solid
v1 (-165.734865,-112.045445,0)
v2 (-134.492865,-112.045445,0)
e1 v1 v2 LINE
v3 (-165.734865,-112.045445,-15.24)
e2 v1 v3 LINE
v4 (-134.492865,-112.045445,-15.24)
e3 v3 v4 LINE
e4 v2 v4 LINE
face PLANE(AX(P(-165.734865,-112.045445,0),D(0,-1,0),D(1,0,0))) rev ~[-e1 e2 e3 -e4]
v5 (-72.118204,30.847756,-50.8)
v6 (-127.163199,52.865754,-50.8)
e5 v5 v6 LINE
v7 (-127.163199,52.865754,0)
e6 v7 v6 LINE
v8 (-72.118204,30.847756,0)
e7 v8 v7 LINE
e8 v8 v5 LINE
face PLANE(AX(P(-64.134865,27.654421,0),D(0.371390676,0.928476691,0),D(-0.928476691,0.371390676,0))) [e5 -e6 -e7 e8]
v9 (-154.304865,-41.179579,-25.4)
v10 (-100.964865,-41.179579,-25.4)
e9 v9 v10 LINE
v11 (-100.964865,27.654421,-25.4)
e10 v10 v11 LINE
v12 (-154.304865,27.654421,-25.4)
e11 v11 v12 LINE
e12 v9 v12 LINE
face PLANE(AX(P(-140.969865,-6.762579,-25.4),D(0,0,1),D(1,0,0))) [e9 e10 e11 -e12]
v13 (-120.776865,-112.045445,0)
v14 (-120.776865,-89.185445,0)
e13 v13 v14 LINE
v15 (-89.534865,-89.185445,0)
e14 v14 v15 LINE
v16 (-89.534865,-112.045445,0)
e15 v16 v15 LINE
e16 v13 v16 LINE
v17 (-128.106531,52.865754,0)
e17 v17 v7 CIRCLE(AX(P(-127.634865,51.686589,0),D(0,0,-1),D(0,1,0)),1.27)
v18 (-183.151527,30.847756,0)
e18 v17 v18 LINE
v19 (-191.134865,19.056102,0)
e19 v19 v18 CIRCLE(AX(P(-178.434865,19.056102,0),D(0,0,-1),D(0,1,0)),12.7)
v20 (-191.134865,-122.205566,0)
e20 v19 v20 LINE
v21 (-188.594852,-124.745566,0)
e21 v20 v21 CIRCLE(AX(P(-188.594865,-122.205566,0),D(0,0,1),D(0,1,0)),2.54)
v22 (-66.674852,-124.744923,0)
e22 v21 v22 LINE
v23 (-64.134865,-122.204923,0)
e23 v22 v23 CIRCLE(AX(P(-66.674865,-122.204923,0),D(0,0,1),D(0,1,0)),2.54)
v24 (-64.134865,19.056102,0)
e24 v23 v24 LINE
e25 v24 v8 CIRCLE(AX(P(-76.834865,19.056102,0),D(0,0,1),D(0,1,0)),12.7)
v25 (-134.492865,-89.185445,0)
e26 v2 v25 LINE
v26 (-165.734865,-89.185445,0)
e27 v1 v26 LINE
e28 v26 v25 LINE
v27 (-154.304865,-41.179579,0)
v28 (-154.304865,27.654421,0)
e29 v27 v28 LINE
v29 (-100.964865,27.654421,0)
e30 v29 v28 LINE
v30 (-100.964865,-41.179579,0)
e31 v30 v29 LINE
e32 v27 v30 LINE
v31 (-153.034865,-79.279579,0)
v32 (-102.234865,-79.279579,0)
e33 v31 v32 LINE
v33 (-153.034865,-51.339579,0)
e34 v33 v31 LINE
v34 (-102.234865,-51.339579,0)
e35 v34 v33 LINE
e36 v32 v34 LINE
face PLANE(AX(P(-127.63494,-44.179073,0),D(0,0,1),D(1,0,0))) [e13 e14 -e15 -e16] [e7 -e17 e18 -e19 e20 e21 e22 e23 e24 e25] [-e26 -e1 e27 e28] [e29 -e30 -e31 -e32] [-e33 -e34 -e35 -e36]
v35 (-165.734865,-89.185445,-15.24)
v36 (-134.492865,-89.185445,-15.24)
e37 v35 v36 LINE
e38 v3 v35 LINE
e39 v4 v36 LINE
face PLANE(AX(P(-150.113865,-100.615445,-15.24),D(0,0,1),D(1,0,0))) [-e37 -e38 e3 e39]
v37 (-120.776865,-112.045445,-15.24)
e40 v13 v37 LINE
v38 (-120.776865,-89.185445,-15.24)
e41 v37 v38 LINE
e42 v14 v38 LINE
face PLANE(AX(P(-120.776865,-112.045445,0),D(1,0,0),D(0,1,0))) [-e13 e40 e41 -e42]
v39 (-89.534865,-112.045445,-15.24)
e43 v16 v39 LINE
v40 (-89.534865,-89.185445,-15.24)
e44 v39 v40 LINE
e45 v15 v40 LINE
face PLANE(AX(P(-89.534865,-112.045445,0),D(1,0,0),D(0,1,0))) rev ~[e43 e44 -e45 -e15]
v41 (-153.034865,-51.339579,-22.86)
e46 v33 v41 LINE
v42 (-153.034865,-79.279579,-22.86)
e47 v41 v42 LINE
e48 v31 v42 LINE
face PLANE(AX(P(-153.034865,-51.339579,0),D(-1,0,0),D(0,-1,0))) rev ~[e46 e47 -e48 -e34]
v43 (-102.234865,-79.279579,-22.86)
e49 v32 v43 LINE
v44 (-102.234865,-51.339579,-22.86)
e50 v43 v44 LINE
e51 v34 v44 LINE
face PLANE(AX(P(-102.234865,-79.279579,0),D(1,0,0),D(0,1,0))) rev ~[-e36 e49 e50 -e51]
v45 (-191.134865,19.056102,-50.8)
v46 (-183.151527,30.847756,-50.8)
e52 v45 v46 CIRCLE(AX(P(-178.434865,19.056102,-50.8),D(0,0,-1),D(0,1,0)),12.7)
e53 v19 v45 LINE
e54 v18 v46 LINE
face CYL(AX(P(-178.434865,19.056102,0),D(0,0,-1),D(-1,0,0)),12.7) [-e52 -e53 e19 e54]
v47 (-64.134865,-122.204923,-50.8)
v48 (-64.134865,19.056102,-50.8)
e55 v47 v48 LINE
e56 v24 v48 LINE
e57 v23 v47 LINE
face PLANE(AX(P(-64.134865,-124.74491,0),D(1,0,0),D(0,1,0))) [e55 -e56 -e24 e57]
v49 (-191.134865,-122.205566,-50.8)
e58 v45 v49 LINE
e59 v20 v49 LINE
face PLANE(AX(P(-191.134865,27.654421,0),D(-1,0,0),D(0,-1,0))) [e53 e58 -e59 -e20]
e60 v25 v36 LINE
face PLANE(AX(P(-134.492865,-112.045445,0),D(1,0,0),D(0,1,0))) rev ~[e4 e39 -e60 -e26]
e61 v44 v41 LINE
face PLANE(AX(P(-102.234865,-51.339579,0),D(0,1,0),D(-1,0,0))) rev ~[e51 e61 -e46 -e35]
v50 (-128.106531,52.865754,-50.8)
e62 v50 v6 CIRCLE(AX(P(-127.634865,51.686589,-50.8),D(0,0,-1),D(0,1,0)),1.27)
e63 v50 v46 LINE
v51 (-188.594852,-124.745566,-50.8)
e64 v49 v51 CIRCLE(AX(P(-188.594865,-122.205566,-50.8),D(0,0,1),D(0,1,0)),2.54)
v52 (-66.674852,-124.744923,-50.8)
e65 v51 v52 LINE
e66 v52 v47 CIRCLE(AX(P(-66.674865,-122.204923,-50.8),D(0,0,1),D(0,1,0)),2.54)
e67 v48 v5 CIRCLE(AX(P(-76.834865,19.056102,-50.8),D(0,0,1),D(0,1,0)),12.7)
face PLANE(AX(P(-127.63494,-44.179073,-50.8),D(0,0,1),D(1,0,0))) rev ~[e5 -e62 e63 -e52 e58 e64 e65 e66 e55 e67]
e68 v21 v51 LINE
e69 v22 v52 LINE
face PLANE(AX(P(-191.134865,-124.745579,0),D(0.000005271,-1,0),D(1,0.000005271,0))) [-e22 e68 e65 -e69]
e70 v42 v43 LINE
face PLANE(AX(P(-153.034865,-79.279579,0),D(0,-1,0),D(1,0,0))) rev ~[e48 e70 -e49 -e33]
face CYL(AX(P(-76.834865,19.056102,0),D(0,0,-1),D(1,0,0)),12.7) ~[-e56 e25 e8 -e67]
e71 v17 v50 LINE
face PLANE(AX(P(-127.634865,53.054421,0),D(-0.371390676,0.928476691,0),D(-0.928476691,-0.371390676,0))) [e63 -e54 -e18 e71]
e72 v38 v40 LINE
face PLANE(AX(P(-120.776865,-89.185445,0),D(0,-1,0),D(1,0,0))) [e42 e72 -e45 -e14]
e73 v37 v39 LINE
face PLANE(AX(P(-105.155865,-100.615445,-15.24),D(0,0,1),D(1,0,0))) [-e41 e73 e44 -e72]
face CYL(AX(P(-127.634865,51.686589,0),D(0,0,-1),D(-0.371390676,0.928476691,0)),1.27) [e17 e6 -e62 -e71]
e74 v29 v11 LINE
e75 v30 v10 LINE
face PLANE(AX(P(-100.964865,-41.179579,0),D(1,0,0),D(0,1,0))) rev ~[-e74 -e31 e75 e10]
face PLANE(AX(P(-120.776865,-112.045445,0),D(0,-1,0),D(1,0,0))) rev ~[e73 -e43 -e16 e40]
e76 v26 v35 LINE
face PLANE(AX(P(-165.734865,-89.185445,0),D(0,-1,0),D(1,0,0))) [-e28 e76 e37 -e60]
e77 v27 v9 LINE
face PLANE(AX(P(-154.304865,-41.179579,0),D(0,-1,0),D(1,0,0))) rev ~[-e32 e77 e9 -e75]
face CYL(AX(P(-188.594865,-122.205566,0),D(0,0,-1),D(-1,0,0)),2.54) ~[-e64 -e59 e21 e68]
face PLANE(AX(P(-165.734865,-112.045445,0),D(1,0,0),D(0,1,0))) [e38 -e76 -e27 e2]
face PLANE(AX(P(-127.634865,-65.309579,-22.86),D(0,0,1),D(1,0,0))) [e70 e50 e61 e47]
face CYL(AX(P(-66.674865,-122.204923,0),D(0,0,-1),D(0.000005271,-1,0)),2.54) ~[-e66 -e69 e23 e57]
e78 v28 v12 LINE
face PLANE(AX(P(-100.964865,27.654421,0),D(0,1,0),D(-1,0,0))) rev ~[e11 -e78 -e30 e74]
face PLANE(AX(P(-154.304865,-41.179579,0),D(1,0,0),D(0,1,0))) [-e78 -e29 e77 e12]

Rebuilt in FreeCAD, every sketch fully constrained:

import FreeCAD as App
import Part
import Sketcher
from FreeCAD import Vector
Q = App.Units.Quantity


def edges_at(feature, points):
    """Names of the edges that pass closest to the given points."""
    edges = feature.Shape.Edges
    near = lambda p: min(range(len(edges)), key=lambda i: edges[i].distToShape(Part.Vertex(*p))[0])
    return sorted({f"Edge{near(p) + 1}" for p in points})

doc = App.newDocument("Part")
body = doc.addObject("PartDesign::Body", "Body")

# Sketch on XY plane
sketch1 = body.newObject("Sketcher::SketchObject", "Sketch")
sketch1.AttachmentSupport = (doc.getObject("XY_Plane"), [""])
sketch1.MapMode = "FlatFace"
sketch1.addGeometry(Part.LineSegment(Vector(-191.134865, 27.654421, 0), Vector(-191.134865, -124.745579, 0)), False)
sketch1.addGeometry(Part.LineSegment(Vector(-191.134865, -124.745579, 0), Vector(-64.134865, -124.74491, 0)), False)
sketch1.addGeometry(Part.LineSegment(Vector(-64.134865, -124.74491, 0), Vector(-64.134865, 27.654421, 0)), False)
sketch1.addGeometry(Part.LineSegment(Vector(-64.134865, 27.654421, 0), Vector(-127.634865, 53.054421, 0)), False)
sketch1.addGeometry(Part.LineSegment(Vector(-127.634865, 53.054421, 0), Vector(-191.134865, 27.654421, 0)), False)
sketch1.addConstraint(Sketcher.Constraint("Coincident", 0, 2, 1, 1))
sketch1.addConstraint(Sketcher.Constraint("Coincident", 1, 2, 2, 1))
sketch1.addConstraint(Sketcher.Constraint("Coincident", 2, 2, 3, 1))
sketch1.addConstraint(Sketcher.Constraint("Coincident", 3, 2, 4, 1))
sketch1.addConstraint(Sketcher.Constraint("Coincident", 4, 2, 0, 1))
sketch1.addConstraint(Sketcher.Constraint("Vertical", 0))
sketch1.addConstraint(Sketcher.Constraint("Vertical", 2))
sketch1.addConstraint(Sketcher.Constraint("Horizontal", 2, 2, 4, 2))
sketch1.addConstraint(Sketcher.Constraint("Equal", 3, 4))
sketch1.addConstraint(Sketcher.Constraint("DistanceY", 0, 2, 0, 1, Q("6 in")))
sketch1.addConstraint(Sketcher.Constraint("Distance", 1, Q("5 in")))
sketch1.addConstraint(Sketcher.Constraint("DistanceY", 2, 2, 3, 2, Q("1 in")))
sketch1.addConstraint(Sketcher.Constraint("DistanceY", 2, 1, 2, 2, Q("152.399331 mm")))
sketch1.addConstraint(Sketcher.Constraint("DistanceY", 0, 2, -1, 1, Q("124.745579 mm")))
sketch1.addConstraint(Sketcher.Constraint("DistanceX", 0, 2, -1, 1, Q("191.134865 mm")))
pad1 = body.newObject("PartDesign::Pad", "Pad")
pad1.Profile = sketch1
pad1.Length = Q("2 in")
pad1.Reversed = True
doc.recompute()

fillet = body.newObject("PartDesign::Fillet", "Fillet")
fillet.Base = (pad1, edges_at(pad1, [(-64.135, 27.654, -25.4)]))
fillet.Radius = Q("0.5 in")
doc.recompute()

fillet2 = body.newObject("PartDesign::Fillet", "Fillet001")
fillet2.Base = (fillet, edges_at(fillet, [(-191.135, 27.654, -25.4)]))
fillet2.Radius = Q("0.5 in")
doc.recompute()

fillet3 = body.newObject("PartDesign::Fillet", "Fillet002")
fillet3.Base = (fillet2, edges_at(fillet2, [(-127.635, 53.054, -25.4)]))
fillet3.Radius = Q("0.05 in")
doc.recompute()

fillet4 = body.newObject("PartDesign::Fillet", "Fillet003")
fillet4.Base = (fillet3, edges_at(fillet3, [(-191.135, -124.746, -25.4)]))
fillet4.Radius = Q("0.1 in")
doc.recompute()

fillet5 = body.newObject("PartDesign::Fillet", "Fillet004")
fillet5.Base = (fillet4, edges_at(fillet4, [(-64.135, -124.745, -25.4)]))
fillet5.Radius = Q("0.1 in")

# Sketch on XY plane
sketch2 = body.newObject("Sketcher::SketchObject", "Sketch001")
sketch2.AttachmentSupport = (doc.getObject("XY_Plane"), [""])
sketch2.MapMode = "FlatFace"
sketch2.addGeometry(Part.LineSegment(Vector(-154.304865, 27.654421, 0), Vector(-154.304865, -41.179579, 0)), False)
sketch2.addGeometry(Part.LineSegment(Vector(-154.304865, -41.179579, 0), Vector(-100.964865, -41.179579, 0)), False)
sketch2.addGeometry(Part.LineSegment(Vector(-100.964865, -41.179579, 0), Vector(-100.964865, 27.654421, 0)), False)
sketch2.addGeometry(Part.LineSegment(Vector(-100.964865, 27.654421, 0), Vector(-154.304865, 27.654421, 0)), False)
sketch2.addConstraint(Sketcher.Constraint("Coincident", 0, 2, 1, 1))
sketch2.addConstraint(Sketcher.Constraint("Coincident", 1, 2, 2, 1))
sketch2.addConstraint(Sketcher.Constraint("Coincident", 2, 2, 3, 1))
sketch2.addConstraint(Sketcher.Constraint("Coincident", 3, 2, 0, 1))
sketch2.addConstraint(Sketcher.Constraint("Vertical", 0))
sketch2.addConstraint(Sketcher.Constraint("Horizontal", 1))
sketch2.addConstraint(Sketcher.Constraint("Vertical", 2))
sketch2.addConstraint(Sketcher.Constraint("Horizontal", 3))
sketch2.addConstraint(Sketcher.Constraint("DistanceX", 1, 1, 1, 2, Q("2.1 in")))
sketch2.addConstraint(Sketcher.Constraint("DistanceY", 0, 2, 0, 1, Q("2.71 in")))
sketch2.addConstraint(Sketcher.Constraint("DistanceY", 0, 2, -1, 1, Q("41.179579 mm")))
sketch2.addConstraint(Sketcher.Constraint("DistanceX", 0, 2, -1, 1, Q("154.304865 mm")))
pocket1 = body.newObject("PartDesign::Pocket", "Pocket")
pocket1.Profile = sketch2
pocket1.Length = Q("1 in")

# Sketch on XY plane
sketch3 = body.newObject("Sketcher::SketchObject", "Sketch002")
sketch3.AttachmentSupport = (doc.getObject("XY_Plane"), [""])
sketch3.MapMode = "FlatFace"
sketch3.addGeometry(Part.LineSegment(Vector(-165.734865, -89.185445, 0), Vector(-165.734865, -112.045445, 0)), False)
sketch3.addGeometry(Part.LineSegment(Vector(-165.734865, -112.045445, 0), Vector(-134.492865, -112.045445, 0)), False)
sketch3.addGeometry(Part.LineSegment(Vector(-134.492865, -112.045445, 0), Vector(-134.492865, -89.185445, 0)), False)
sketch3.addGeometry(Part.LineSegment(Vector(-134.492865, -89.185445, 0), Vector(-165.734865, -89.185445, 0)), False)
sketch3.addGeometry(Part.LineSegment(Vector(-120.776865, -89.185445, 0), Vector(-120.776865, -112.045445, 0)), False)
sketch3.addGeometry(Part.LineSegment(Vector(-120.776865, -112.045445, 0), Vector(-89.534865, -112.045445, 0)), False)
sketch3.addGeometry(Part.LineSegment(Vector(-89.534865, -112.045445, 0), Vector(-89.534865, -89.185445, 0)), False)
sketch3.addGeometry(Part.LineSegment(Vector(-89.534865, -89.185445, 0), Vector(-120.776865, -89.185445, 0)), False)
sketch3.addConstraint(Sketcher.Constraint("Coincident", 0, 2, 1, 1))
sketch3.addConstraint(Sketcher.Constraint("Coincident", 1, 2, 2, 1))
sketch3.addConstraint(Sketcher.Constraint("Coincident", 2, 2, 3, 1))
sketch3.addConstraint(Sketcher.Constraint("Coincident", 3, 2, 0, 1))
sketch3.addConstraint(Sketcher.Constraint("Coincident", 4, 2, 5, 1))
sketch3.addConstraint(Sketcher.Constraint("Coincident", 5, 2, 6, 1))
sketch3.addConstraint(Sketcher.Constraint("Coincident", 6, 2, 7, 1))
sketch3.addConstraint(Sketcher.Constraint("Coincident", 7, 2, 4, 1))
sketch3.addConstraint(Sketcher.Constraint("Vertical", 0))
sketch3.addConstraint(Sketcher.Constraint("Horizontal", 1))
sketch3.addConstraint(Sketcher.Constraint("Vertical", 2))
sketch3.addConstraint(Sketcher.Constraint("Horizontal", 3))
sketch3.addConstraint(Sketcher.Constraint("Vertical", 4))
sketch3.addConstraint(Sketcher.Constraint("Horizontal", 5))
sketch3.addConstraint(Sketcher.Constraint("Vertical", 6))
sketch3.addConstraint(Sketcher.Constraint("Horizontal", 7))
sketch3.addConstraint(Sketcher.Constraint("Horizontal", 1, 2, 4, 2))
sketch3.addConstraint(Sketcher.Constraint("Horizontal", 3, 2, 6, 2))
sketch3.addConstraint(Sketcher.Constraint("Equal", 3, 5))
sketch3.addConstraint(Sketcher.Constraint("DistanceY", 0, 2, 0, 1, Q("0.9 in")))
sketch3.addConstraint(Sketcher.Constraint("DistanceX", 0, 2, 5, 2, Q("3 in")))
sketch3.addConstraint(Sketcher.Constraint("DistanceX", 1, 1, 1, 2, Q("1.23 in")))
sketch3.addConstraint(Sketcher.Constraint("DistanceX", 0, 2, -1, 1, Q("165.734865 mm")))
sketch3.addConstraint(Sketcher.Constraint("DistanceY", 0, 2, -1, 1, Q("112.045445 mm")))
pocket2 = body.newObject("PartDesign::Pocket", "Pocket001")
pocket2.Profile = sketch3
pocket2.Length = Q("0.6 in")

# Sketch on XY plane
sketch4 = body.newObject("Sketcher::SketchObject", "Sketch003")
sketch4.AttachmentSupport = (doc.getObject("XY_Plane"), [""])
sketch4.MapMode = "FlatFace"
sketch4.addGeometry(Part.LineSegment(Vector(-102.234865, -51.339579, 0), Vector(-153.034865, -51.339579, 0)), False)
sketch4.addGeometry(Part.LineSegment(Vector(-153.034865, -51.339579, 0), Vector(-153.034865, -79.279579, 0)), False)
sketch4.addGeometry(Part.LineSegment(Vector(-153.034865, -79.279579, 0), Vector(-102.234865, -79.279579, 0)), False)
sketch4.addGeometry(Part.LineSegment(Vector(-102.234865, -79.279579, 0), Vector(-102.234865, -51.339579, 0)), False)
sketch4.addConstraint(Sketcher.Constraint("Coincident", 0, 2, 1, 1))
sketch4.addConstraint(Sketcher.Constraint("Coincident", 1, 2, 2, 1))
sketch4.addConstraint(Sketcher.Constraint("Coincident", 2, 2, 3, 1))
sketch4.addConstraint(Sketcher.Constraint("Coincident", 3, 2, 0, 1))
sketch4.addConstraint(Sketcher.Constraint("Horizontal", 0))
sketch4.addConstraint(Sketcher.Constraint("Vertical", 1))
sketch4.addConstraint(Sketcher.Constraint("Horizontal", 2))
sketch4.addConstraint(Sketcher.Constraint("Vertical", 3))
sketch4.addConstraint(Sketcher.Constraint("DistanceX", 0, 2, 0, 1, Q("2 in")))
sketch4.addConstraint(Sketcher.Constraint("DistanceY", 1, 2, 1, 1, Q("1.1 in")))
sketch4.addConstraint(Sketcher.Constraint("DistanceY", 0, 2, -1, 1, Q("51.339579 mm")))
sketch4.addConstraint(Sketcher.Constraint("DistanceX", 0, 2, -1, 1, Q("153.034865 mm")))
pocket3 = body.newObject("PartDesign::Pocket", "Pocket002")
pocket3.Profile = sketch4
pocket3.Length = Q("0.9 in")

doc.recompute()
